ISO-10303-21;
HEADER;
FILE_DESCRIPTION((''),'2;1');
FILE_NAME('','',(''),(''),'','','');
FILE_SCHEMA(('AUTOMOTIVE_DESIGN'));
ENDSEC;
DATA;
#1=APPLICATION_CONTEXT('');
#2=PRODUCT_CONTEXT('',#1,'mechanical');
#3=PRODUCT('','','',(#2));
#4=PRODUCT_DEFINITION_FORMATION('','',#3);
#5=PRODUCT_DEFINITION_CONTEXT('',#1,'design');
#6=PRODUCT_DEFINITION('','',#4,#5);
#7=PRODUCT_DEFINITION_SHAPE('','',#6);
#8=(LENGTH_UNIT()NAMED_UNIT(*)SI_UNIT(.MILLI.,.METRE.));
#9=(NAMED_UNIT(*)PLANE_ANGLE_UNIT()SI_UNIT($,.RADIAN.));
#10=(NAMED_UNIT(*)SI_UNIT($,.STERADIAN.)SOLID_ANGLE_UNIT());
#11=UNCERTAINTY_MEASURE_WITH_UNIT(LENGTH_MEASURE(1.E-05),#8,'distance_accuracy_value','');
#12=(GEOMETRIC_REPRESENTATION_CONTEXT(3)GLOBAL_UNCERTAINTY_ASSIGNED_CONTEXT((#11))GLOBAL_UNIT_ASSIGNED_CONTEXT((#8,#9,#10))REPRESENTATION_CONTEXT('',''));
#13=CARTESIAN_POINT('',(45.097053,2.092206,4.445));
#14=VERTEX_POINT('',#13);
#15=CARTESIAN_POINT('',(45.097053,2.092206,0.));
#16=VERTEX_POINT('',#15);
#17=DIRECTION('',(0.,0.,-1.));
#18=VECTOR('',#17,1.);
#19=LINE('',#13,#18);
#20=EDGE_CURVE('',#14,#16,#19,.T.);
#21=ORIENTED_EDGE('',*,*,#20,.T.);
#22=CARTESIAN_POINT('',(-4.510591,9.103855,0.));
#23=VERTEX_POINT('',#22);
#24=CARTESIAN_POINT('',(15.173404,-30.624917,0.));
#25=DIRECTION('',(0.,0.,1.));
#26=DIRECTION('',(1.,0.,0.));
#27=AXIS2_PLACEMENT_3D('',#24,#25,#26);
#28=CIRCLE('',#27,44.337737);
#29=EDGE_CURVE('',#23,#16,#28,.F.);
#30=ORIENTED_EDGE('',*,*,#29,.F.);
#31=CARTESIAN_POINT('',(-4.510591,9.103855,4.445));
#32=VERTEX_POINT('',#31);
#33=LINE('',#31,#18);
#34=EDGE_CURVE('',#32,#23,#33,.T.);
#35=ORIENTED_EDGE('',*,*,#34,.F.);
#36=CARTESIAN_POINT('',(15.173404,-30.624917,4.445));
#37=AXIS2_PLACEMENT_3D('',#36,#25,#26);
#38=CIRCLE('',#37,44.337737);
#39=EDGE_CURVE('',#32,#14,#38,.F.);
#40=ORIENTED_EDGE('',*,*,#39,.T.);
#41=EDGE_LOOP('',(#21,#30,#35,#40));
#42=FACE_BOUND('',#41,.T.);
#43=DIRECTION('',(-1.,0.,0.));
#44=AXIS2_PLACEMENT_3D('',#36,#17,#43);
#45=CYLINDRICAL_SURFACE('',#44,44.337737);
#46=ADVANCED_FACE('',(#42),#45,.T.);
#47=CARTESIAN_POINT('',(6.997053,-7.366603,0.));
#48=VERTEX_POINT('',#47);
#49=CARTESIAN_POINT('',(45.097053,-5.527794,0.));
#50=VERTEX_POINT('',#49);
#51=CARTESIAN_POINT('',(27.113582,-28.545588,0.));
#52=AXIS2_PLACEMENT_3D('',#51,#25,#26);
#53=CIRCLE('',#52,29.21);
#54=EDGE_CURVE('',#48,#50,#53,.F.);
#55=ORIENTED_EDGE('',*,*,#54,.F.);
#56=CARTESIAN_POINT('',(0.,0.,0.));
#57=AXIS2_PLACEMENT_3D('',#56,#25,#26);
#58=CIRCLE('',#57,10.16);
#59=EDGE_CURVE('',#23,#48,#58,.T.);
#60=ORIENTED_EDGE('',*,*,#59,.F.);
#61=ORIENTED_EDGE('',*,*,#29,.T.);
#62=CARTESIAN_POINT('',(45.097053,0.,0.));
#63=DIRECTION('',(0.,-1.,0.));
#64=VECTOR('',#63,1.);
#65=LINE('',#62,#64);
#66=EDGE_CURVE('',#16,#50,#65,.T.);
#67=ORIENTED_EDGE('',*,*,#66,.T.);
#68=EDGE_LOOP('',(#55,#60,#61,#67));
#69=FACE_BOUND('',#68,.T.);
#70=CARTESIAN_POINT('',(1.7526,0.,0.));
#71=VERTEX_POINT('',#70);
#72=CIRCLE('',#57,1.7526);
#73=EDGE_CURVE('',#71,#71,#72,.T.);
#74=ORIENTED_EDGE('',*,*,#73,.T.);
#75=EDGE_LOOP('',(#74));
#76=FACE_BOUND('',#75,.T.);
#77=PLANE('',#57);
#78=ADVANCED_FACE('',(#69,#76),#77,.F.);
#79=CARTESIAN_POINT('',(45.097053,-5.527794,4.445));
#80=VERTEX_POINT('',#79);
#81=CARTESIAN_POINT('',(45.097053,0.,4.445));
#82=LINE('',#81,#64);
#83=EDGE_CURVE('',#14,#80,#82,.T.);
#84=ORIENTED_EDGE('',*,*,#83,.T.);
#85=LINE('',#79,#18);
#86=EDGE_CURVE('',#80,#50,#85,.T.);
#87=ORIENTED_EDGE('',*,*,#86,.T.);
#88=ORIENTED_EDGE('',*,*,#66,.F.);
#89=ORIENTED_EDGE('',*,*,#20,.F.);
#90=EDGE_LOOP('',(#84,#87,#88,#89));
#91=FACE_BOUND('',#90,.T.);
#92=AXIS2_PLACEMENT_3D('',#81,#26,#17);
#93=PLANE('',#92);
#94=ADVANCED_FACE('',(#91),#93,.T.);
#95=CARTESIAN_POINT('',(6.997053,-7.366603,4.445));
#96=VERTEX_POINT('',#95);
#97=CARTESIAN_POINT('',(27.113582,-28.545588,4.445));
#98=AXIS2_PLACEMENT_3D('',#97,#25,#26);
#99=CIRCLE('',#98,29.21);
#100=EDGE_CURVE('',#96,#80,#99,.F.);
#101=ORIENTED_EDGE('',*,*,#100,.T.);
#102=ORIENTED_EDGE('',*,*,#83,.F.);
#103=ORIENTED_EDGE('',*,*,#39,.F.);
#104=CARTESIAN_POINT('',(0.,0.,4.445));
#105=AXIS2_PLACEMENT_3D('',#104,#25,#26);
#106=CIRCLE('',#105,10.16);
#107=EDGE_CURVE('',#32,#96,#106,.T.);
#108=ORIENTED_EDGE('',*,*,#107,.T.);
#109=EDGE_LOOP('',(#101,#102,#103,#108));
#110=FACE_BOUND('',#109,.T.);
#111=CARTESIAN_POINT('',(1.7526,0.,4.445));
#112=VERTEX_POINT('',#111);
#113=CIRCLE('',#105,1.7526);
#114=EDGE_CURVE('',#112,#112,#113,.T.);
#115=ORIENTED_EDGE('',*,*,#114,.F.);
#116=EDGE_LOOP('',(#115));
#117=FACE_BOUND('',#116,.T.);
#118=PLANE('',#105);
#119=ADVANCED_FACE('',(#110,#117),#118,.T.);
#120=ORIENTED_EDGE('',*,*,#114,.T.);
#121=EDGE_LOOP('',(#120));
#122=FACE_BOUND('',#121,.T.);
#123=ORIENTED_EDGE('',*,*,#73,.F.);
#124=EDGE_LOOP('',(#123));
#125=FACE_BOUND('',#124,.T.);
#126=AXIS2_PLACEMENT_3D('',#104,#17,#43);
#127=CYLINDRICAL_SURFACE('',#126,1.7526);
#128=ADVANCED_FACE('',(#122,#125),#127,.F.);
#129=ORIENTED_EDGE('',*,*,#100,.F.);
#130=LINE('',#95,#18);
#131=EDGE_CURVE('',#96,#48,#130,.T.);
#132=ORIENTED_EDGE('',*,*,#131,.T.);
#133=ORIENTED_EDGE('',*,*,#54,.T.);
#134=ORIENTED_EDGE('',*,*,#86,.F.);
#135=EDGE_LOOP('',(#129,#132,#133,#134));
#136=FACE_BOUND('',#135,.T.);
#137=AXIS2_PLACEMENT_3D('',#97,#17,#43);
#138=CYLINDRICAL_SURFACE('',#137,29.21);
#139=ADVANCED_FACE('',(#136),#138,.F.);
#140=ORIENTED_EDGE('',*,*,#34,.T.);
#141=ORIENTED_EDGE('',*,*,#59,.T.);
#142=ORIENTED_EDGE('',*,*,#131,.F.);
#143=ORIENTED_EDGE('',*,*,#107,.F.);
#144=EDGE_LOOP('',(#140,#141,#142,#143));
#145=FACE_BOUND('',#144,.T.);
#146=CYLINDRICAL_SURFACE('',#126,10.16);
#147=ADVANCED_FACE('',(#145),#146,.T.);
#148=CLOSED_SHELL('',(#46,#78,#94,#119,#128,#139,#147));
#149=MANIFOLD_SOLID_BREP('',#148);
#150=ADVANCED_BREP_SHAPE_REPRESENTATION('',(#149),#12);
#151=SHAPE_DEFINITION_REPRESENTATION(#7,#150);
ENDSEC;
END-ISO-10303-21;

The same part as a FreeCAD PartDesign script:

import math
import FreeCAD as App
import Part
import Sketcher
from FreeCAD import Vector
Q = App.Units.Quantity

doc = App.newDocument("Part")
body = doc.addObject("PartDesign::Body", "Body")

# Sketch on XY plane
sketch1 = body.newObject("Sketcher::SketchObject", "Sketch")
sketch1.AttachmentSupport = (doc.getObject("XY_Plane"), [""])
sketch1.MapMode = "FlatFace"
sketch1.addGeometry(Part.LineSegment(Vector(45.1, -5.5, 0), Vector(45.1, 2.1, 0)), False)
sketch1.addGeometry(Part.ArcOfCircle(Part.Circle(Vector(15.2, -30.6, 0), Vector(0, 0, 1), 44.3), math.radians(48), math.radians(116)), False)
sketch1.addGeometry(Part.ArcOfCircle(Part.Circle(Vector(0, 0, 0), Vector(0, 0, 1), 10.2), math.radians(116), math.radians(314)), False)
sketch1.addGeometry(Part.ArcOfCircle(Part.Circle(Vector(27.1, -28.5, 0), Vector(0, 0, 1), 29.2), math.radians(52), math.radians(134)), False)
sketch1.addGeometry(Part.Circle(Vector(0, 0, 0), Vector(0, 0, 1), 1.8), False)
sketch1.addConstraint(Sketcher.Constraint("Coincident", 0, 2, 1, 1))
sketch1.addConstraint(Sketcher.Constraint("Tangent", 1, 2, 2, 1))
sketch1.addConstraint(Sketcher.Constraint("Tangent", 2, 2, 3, 2))
sketch1.addConstraint(Sketcher.Constraint("Coincident", 3, 1, 0, 1))
sketch1.addConstraint(Sketcher.Constraint("Vertical", 0))
sketch1.addConstraint(Sketcher.Constraint("Coincident", 2, 3, -1, 1))
sketch1.addConstraint(Sketcher.Constraint("Coincident", 4, 3, -1, 1))
sketch1.addConstraint(Sketcher.Constraint("Radius", 2, Q("0.4 in")))
sketch1.addConstraint(Sketcher.Constraint("Radius", 3, Q("1.15 in")))
sketch1.addConstraint(Sketcher.Constraint("Diameter", 4, Q("0.138 in")))
sketch1.addConstraint(Sketcher.Constraint("DistanceY", 0, 1, 0, 2, Q("0.3 in")))
sketch1.addConstraint(Sketcher.Constraint("DistanceX", 2, 2, 3, 1, Q("1.5 in")))
sketch1.addConstraint(Sketcher.Constraint("Radius", 1, Q("44.337737 mm")))
sketch1.addConstraint(Sketcher.Constraint("DistanceX", -1, 1, 3, 3, Q("27.113582 mm")))
pad1 = body.newObject("PartDesign::Pad", "Pad")
pad1.Profile = sketch1
pad1.Length = Q("0.175 in")

doc.recompute()
